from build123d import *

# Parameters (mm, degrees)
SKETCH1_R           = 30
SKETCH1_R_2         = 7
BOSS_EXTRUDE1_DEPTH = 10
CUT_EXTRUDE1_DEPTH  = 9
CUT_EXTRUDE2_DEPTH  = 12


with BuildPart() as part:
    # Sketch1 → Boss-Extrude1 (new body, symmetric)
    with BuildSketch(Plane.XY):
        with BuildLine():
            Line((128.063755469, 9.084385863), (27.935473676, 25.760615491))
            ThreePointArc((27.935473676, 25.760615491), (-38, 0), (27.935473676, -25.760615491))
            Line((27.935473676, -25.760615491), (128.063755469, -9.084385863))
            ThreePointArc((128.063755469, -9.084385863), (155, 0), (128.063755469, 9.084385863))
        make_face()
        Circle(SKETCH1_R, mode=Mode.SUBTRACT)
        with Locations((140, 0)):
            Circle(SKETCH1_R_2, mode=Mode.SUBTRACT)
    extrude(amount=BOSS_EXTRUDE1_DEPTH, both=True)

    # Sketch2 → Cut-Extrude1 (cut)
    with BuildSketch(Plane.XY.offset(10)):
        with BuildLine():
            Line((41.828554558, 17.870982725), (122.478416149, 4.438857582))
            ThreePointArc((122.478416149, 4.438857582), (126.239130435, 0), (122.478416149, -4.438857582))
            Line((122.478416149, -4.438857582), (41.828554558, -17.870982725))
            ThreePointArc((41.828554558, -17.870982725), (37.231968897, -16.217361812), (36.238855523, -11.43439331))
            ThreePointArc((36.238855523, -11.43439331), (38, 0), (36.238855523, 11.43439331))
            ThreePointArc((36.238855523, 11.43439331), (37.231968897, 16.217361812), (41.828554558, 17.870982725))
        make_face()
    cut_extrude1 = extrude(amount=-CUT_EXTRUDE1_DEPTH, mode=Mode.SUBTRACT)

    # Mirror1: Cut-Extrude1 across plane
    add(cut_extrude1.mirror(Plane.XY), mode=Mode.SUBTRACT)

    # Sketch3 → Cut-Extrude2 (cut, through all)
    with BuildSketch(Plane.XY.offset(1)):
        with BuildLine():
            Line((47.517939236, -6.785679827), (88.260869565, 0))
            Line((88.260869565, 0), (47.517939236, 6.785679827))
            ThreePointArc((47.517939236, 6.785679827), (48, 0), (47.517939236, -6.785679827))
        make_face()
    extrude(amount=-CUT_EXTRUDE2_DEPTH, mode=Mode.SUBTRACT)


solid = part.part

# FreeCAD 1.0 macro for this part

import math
import FreeCAD as App
import Part
import Sketcher
from FreeCAD import Vector
Q = App.Units.Quantity

doc = App.newDocument("Part")
body = doc.addObject("PartDesign::Body", "Body")

sketch1 = body.newObject("Sketcher::SketchObject", "Sketch")
sketch1.AttachmentSupport = (doc.getObject("XY_Plane"), [""])
sketch1.MapMode = "FlatFace"
sketch1.addGeometry([
    Part.LineSegment(Vector(128, 9, 0), Vector(28, 26, 0)),
    Part.ArcOfCircle(Part.Circle(Vector(0, 0, 0), Vector(0, 0, 1), 38), math.radians(43), math.radians(317)),
    Part.LineSegment(Vector(28, -26, 0), Vector(128, -9, 0)),
    Part.ArcOfCircle(Part.Circle(Vector(140, 0, 0), Vector(0, 0, 1), 15), math.radians(-143), math.radians(143)),
    Part.Circle(Vector(0, 0, 0), Vector(0, 0, 1), 30),
    Part.Circle(Vector(140, 0, 0), Vector(0, 0, 1), 7),
], False)
sketch1.addConstraint([
    Sketcher.Constraint("Coincident", 0, 2, 1, 1),
    Sketcher.Constraint("Coincident", 1, 2, 2, 1),
    Sketcher.Constraint("Coincident", 2, 2, 3, 1),
    Sketcher.Constraint("Coincident", 3, 2, 0, 1),
    Sketcher.Constraint("Coincident", 1, 3, -1, 1),
    Sketcher.Constraint("Coincident", 4, 3, -1, 1),
    Sketcher.Constraint("Coincident", 5, 3, 3, 3),
    Sketcher.Constraint("Symmetric", 2, 2, 3, 2, -1),
    Sketcher.Constraint("Vertical", 0, 2, 1, 2),
    Sketcher.Constraint("Diameter", 4, Q("60 mm")),
    Sketcher.Constraint("Diameter", 5, Q("14 mm")),
    Sketcher.Constraint("Radius", 1, Q("38 mm")),
    Sketcher.Constraint("Radius", 3, Q("15 mm")),
    Sketcher.Constraint("DistanceX", -1, 1, 3, 3, Q("140 mm")),
    Sketcher.Constraint("DistanceY", 2, 2, 0, 2, Q("34.845001 mm")),
    Sketcher.Constraint("DistanceY", 1, 2, 0, 2, Q("51.521231 mm")),
])
pad1 = body.newObject("PartDesign::Pad", "Pad")
pad1.Profile = sketch1
pad1.Length = 20
pad1.Midplane = True

sketch2 = body.newObject("Sketcher::SketchObject", "Sketch001")
sketch2.AttachmentSupport = (doc.getObject("XY_Plane"), [""])
sketch2.MapMode = "FlatFace"
sketch2.AttachmentOffset = App.Placement(Vector(0, 0, 10), App.Rotation())
sketch2.addGeometry([
    Part.LineSegment(Vector(122.5, 4.4, 0), Vector(41.8, 17.9, 0)),
    Part.ArcOfCircle(Part.Circle(Vector(41, 12.9, 0), Vector(0, 0, 1), 5), math.radians(81), math.radians(198)),
    Part.ArcOfCircle(Part.Circle(Vector(0, 0, 0), Vector(0, 0, 1), 38), math.radians(-18), math.radians(18)),
    Part.ArcOfCircle(Part.Circle(Vector(41, -12.9, 0), Vector(0, 0, 1), 5), math.radians(162), math.radians(279)),
    Part.LineSegment(Vector(41.8, -17.9, 0), Vector(122.5, -4.4, 0)),
    Part.ArcOfCircle(Part.Circle(Vector(121.7, 0, 0), Vector(0, 0, 1), 4.5), math.radians(-81), math.radians(81)),
], False)
sketch2.addConstraint([
    Sketcher.Constraint("Tangent", 0, 2, 1, 1),
    Sketcher.Constraint("Tangent", 1, 2, 2, 2),
    Sketcher.Constraint("Tangent", 2, 1, 3, 1),
    Sketcher.Constraint("Tangent", 3, 2, 4, 1),
    Sketcher.Constraint("Tangent", 4, 2, 5, 1),
    Sketcher.Constraint("Tangent", 5, 2, 0, 1),
    Sketcher.Constraint("Coincident", 2, 3, -1, 1),
    Sketcher.Constraint("Equal", 1, 3),
    Sketcher.Constraint("Symmetric", 0, 2, 3, 2, -1),
    Sketcher.Constraint("Radius", 1, Q("5 mm")),
    Sketcher.Constraint("Radius", 2, Q("38 mm")),
    Sketcher.Constraint("Radius", 5, Q("4.5 mm")),
    Sketcher.Constraint("DistanceY", 3, 3, 0, 2, Q("30.809901 mm")),
    Sketcher.Constraint("DistanceX", 1, 2, 0, 2, Q("5.589699 mm")),
])
pocket1 = body.newObject("PartDesign::Pocket", "Pocket")
pocket1.Profile = sketch2
pocket1.Length = 9
doc.recompute()

mirrored = body.newObject("PartDesign::Mirrored", "Mirrored")
mirrored.Originals = [pocket1]
mirrored.MirrorPlane = (doc.getObject("XY_Plane"), [""])
body.Tip = mirrored

sketch3 = body.newObject("Sketcher::SketchObject", "Sketch002")
sketch3.AttachmentSupport = (doc.getObject("XY_Plane"), [""])
sketch3.MapMode = "FlatFace"
sketch3.AttachmentOffset = App.Placement(Vector(0, 0, 1), App.Rotation())
sketch3.addGeometry([
    Part.LineSegment(Vector(48, -7, 0), Vector(88, 0, 0)),
    Part.LineSegment(Vector(88, 0, 0), Vector(48, 7, 0)),
    Part.ArcOfCircle(Part.Circle(Vector(0, 0, 0), Vector(0, 0, 1), 48), math.radians(-8.13), math.radians(8.13)),
], False)
sketch3.addConstraint([
    Sketcher.Constraint("Coincident", 0, 2, 1, 1),
    Sketcher.Constraint("Coincident", 1, 2, 2, 2),
    Sketcher.Constraint("Coincident", 2, 1, 0, 1),
    Sketcher.Constraint("Coincident", 2, 3, -1, 1),
    Sketcher.Constraint("PointOnObject", 0, 2, -1),
    Sketcher.Constraint("Vertical", 1, 2, 2, 1),
    Sketcher.Constraint("Radius", 2, Q("48 mm")),
    Sketcher.Constraint("Distance", 0, Q("41.304138 mm")),
    Sketcher.Constraint("DistanceX", -1, 1, 0, 2, Q("88.26087 mm")),
])
pocket2 = body.newObject("PartDesign::Pocket", "Pocket001")
pocket2.Profile = sketch3
pocket2.Type = "ThroughAll"

doc.recompute()
